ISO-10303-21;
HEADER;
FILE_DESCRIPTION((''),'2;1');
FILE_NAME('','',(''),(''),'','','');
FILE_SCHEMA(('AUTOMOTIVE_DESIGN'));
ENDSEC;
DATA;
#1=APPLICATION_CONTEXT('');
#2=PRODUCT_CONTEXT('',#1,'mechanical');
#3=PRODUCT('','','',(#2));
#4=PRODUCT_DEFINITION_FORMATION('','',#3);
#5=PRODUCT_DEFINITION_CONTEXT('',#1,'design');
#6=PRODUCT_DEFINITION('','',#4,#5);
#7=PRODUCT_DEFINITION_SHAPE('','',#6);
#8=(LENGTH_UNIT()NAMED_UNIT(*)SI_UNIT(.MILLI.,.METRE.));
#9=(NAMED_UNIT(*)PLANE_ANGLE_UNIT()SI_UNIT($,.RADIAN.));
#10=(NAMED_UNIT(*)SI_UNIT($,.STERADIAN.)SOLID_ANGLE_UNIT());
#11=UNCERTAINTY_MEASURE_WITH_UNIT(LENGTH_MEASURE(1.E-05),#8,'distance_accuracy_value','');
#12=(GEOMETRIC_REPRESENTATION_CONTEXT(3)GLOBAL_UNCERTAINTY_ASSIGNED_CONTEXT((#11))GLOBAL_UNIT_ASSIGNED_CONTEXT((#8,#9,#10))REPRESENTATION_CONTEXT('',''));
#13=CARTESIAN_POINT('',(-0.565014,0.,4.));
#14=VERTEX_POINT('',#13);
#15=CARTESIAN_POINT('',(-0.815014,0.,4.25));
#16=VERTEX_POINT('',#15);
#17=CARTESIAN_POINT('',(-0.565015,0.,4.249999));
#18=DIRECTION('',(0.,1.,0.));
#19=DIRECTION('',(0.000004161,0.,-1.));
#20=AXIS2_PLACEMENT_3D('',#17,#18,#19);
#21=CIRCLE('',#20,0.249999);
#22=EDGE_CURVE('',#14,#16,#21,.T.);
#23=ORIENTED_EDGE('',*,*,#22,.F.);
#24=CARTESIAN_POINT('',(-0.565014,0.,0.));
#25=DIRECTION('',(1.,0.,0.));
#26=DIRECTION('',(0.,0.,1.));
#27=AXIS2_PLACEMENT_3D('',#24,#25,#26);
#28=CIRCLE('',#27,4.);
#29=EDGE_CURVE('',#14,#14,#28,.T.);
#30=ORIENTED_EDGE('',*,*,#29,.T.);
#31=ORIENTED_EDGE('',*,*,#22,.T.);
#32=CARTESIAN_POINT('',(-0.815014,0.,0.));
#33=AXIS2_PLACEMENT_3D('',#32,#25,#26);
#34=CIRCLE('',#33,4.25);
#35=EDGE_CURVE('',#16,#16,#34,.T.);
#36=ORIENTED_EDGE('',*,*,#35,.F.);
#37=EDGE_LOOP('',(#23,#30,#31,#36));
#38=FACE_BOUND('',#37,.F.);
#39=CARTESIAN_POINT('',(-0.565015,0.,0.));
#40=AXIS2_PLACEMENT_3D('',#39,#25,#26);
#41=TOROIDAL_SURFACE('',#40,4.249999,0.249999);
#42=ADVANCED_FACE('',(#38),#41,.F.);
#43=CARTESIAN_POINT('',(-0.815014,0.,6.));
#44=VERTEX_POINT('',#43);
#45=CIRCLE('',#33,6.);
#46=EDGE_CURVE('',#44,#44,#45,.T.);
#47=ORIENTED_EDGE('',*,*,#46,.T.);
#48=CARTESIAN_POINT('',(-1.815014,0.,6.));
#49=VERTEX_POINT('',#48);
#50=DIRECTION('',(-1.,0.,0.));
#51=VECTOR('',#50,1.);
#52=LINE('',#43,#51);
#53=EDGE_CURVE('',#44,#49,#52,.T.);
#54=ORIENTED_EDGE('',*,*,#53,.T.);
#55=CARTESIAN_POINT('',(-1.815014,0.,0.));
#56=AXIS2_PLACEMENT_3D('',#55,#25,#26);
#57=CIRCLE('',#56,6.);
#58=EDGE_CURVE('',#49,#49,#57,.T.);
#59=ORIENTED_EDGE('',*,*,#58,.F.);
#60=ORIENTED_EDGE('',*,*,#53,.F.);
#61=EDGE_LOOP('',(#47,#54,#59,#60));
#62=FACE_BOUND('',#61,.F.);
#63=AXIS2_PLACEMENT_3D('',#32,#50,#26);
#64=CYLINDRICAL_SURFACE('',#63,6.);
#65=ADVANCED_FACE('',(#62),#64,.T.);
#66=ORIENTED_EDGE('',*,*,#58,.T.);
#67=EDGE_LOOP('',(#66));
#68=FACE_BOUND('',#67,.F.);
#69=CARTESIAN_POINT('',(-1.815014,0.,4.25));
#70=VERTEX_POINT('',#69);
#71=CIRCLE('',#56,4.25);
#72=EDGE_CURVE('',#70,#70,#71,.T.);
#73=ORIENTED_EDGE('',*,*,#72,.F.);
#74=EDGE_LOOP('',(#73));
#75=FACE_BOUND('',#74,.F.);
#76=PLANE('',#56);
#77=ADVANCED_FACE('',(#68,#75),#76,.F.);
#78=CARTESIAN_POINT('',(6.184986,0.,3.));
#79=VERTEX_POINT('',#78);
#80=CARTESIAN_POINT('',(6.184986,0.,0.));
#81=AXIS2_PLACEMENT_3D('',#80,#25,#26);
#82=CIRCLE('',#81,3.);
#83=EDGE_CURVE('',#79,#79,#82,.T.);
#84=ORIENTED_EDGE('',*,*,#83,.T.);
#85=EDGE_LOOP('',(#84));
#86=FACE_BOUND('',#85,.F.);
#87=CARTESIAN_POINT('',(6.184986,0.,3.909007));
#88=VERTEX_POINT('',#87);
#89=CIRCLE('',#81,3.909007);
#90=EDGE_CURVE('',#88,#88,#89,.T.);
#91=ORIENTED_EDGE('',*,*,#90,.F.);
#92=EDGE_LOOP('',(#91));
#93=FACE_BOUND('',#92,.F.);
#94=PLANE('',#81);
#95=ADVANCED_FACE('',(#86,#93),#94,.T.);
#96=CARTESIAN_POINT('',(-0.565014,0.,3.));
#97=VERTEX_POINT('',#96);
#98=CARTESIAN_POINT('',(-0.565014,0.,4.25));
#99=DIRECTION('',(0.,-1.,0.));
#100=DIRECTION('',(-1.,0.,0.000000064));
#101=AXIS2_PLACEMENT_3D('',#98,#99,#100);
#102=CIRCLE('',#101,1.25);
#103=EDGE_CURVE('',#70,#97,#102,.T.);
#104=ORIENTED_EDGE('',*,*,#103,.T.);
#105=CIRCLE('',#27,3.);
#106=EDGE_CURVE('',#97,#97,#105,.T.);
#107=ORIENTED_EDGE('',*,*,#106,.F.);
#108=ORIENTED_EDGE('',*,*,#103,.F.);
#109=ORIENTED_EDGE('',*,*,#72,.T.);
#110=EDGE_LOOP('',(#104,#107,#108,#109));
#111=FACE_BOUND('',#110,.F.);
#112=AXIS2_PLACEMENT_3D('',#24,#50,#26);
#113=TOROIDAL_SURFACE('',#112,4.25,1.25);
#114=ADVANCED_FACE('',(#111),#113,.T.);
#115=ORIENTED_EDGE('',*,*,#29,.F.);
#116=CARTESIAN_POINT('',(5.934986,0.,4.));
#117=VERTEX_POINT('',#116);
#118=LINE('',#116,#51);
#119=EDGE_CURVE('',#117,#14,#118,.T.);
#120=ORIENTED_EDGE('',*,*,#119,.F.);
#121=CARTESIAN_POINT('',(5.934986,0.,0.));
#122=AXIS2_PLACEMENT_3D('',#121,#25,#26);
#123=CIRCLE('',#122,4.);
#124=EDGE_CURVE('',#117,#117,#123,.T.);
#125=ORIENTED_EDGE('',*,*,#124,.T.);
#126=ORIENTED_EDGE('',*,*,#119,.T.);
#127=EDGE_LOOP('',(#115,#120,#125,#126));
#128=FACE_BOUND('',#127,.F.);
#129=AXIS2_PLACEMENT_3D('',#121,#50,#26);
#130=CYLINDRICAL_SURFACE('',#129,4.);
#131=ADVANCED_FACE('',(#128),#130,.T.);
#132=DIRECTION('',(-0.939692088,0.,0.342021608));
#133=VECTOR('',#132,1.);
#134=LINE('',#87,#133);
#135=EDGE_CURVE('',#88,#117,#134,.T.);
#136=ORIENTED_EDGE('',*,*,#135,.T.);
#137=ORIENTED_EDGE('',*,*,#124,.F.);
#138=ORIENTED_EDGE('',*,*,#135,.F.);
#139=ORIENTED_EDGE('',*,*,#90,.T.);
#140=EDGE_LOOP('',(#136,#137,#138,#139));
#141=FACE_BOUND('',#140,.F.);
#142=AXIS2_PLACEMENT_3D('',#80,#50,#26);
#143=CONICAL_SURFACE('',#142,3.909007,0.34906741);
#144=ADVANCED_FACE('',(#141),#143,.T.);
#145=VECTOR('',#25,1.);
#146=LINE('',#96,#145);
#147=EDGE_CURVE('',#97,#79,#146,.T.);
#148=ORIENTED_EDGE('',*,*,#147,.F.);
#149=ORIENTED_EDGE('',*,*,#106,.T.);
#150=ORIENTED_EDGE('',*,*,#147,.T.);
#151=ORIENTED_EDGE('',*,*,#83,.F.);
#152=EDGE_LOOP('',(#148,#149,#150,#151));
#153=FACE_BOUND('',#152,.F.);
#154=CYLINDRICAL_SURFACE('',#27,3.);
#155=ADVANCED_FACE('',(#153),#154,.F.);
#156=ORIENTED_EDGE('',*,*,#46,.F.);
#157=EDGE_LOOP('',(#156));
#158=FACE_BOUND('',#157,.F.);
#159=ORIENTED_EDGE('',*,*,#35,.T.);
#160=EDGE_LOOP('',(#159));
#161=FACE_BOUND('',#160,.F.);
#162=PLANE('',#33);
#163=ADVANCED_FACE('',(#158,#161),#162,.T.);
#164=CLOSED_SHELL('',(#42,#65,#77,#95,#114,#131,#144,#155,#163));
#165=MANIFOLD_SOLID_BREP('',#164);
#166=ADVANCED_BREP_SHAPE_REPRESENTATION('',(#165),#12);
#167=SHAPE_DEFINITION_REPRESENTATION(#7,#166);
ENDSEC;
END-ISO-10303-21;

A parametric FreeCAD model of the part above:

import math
import FreeCAD as App
import Part
import Sketcher
from FreeCAD import Vector

doc = App.newDocument("Part")
body = doc.addObject("PartDesign::Body", "Body")

# Sketch on XZ plane
sketch1 = body.newObject("Sketcher::SketchObject", "Sketch")
sketch1.AttachmentSupport = (doc.getObject("XZ_Plane"), [""])
sketch1.MapMode = "FlatFace"
sketch1.addGeometry([
    Part.ArcOfCircle(Part.Circle(Vector(-0.565014, 4.25, 0), Vector(0, 0, 1), 1.25), math.radians(179.999996), math.radians(270.000004)),  # 0
    Part.LineSegment(Vector(-0.565014, 3, 0), Vector(6.184986, 3, 0)),  # 1
    Part.LineSegment(Vector(6.184986, 3, 0), Vector(6.184986, 3.909007, 0)),  # 2
    Part.LineSegment(Vector(6.184986, 3.909007, 0), Vector(5.934986, 4, 0)),  # 3
    Part.LineSegment(Vector(5.934986, 4, 0), Vector(-0.565014, 4, 0)),  # 4
    Part.ArcOfCircle(Part.Circle(Vector(-0.565015, 4.249999, 0), Vector(0, 0, 1), 0.249999), math.radians(179.999762), math.radians(270.000238)),  # 5
    Part.LineSegment(Vector(-0.815014, 4.25, 0), Vector(-0.815014, 6, 0)),  # 6
    Part.LineSegment(Vector(-0.815014, 6, 0), Vector(-1.815014, 6, 0)),  # 7
    Part.LineSegment(Vector(-1.815014, 6, 0), Vector(-1.815014, 4.25, 0)),  # 8
], False)
sketch1.addConstraint([
    Sketcher.Constraint("Tangent", 0, 2, 1, 1),
    Sketcher.Constraint("Coincident", 1, 2, 2, 1),
    Sketcher.Constraint("Coincident", 2, 2, 3, 1),
    Sketcher.Constraint("Coincident", 3, 2, 4, 1),
    Sketcher.Constraint("Coincident", 4, 2, 5, 2),
    Sketcher.Constraint("Coincident", 5, 1, 6, 1),
    Sketcher.Constraint("Coincident", 6, 2, 7, 1),
    Sketcher.Constraint("Coincident", 7, 2, 8, 1),
    Sketcher.Constraint("Tangent", 8, 2, 0, 1),
    Sketcher.Constraint("Horizontal", 1),
    Sketcher.Constraint("Vertical", 2),
    Sketcher.Constraint("Horizontal", 4),
    Sketcher.Constraint("Vertical", 6),
    Sketcher.Constraint("Horizontal", 7),
    Sketcher.Constraint("Vertical", 8),
    Sketcher.Constraint("Coincident", 5, 3, 0, 3),
    Sketcher.Constraint("Horizontal", 0, 3, 5, 1),
    Sketcher.Constraint("Vertical", 0, 2, 4, 2),
    Sketcher.Constraint("DistanceX", 7, 2, 7, 1, 1.0),
    Sketcher.Constraint("Radius", 0, 1.25),
    Sketcher.Constraint("DistanceX", 4, 2, 4, 1, 6.5),
    Sketcher.Constraint("DistanceY", -1, 1, 0, 2, 3.0),
    Sketcher.Constraint("DistanceY", -1, 1, 6, 2, 6.0),
    Sketcher.Constraint("DistanceX", 1, 1, 1, 2, 6.75),
    Sketcher.Constraint("DistanceY", 2, 1, 2, 2, 0.909007),
    Sketcher.Constraint("DistanceX", 0, 3, -1, 1, 0.565014),
])
revolution = body.newObject("PartDesign::Revolution", "Revolution")
revolution.Profile = sketch1
revolution.ReferenceAxis = (sketch1, ["H_Axis"])
revolution.Angle = 360

doc.recompute()
